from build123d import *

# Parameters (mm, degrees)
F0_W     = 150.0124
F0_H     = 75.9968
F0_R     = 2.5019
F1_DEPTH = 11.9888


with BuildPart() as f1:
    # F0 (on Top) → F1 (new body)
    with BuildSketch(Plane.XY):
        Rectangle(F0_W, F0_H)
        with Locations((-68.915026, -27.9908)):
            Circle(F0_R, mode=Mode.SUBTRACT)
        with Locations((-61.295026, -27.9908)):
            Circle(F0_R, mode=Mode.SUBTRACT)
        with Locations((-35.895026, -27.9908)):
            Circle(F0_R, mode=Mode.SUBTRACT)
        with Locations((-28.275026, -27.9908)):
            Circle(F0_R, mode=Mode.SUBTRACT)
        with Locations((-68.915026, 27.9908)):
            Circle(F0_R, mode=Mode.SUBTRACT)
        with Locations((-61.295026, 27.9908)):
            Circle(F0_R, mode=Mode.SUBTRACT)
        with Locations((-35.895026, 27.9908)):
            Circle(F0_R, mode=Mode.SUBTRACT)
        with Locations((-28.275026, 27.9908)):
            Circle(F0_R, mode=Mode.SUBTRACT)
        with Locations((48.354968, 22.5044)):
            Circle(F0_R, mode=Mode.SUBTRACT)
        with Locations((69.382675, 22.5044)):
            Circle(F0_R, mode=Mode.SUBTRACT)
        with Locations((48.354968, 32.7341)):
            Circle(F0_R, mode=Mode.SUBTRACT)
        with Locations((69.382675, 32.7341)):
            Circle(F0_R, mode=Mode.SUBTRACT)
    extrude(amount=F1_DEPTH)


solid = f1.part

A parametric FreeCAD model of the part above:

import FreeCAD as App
import Part
import Sketcher
from FreeCAD import Vector
Q = App.Units.Quantity

doc = App.newDocument("Part")
body = doc.addObject("PartDesign::Body", "Body")

# Sketch on XY plane
sketch1 = body.newObject("Sketcher::SketchObject", "Sketch")
sketch1.AttachmentSupport = (doc.getObject("XY_Plane"), [""])
sketch1.MapMode = "FlatFace"
sketch1.addGeometry([
    Part.LineSegment(Vector(-75, 38, 0), Vector(-75, -38, 0)),  # 0
    Part.LineSegment(Vector(-75, -38, 0), Vector(75, -38, 0)),  # 1
    Part.LineSegment(Vector(75, -38, 0), Vector(75, 38, 0)),  # 2
    Part.LineSegment(Vector(75, 38, 0), Vector(-75, 38, 0)),  # 3
    Part.Circle(Vector(-68.9, -28, 0), Vector(0, 0, 1), 2.5),  # 4
    Part.Circle(Vector(-61.3, -28, 0), Vector(0, 0, 1), 2.5),  # 5
    Part.Circle(Vector(-35.9, -28, 0), Vector(0, 0, 1), 2.5),  # 6
    Part.Circle(Vector(-28.3, -28, 0), Vector(0, 0, 1), 2.5),  # 7
    Part.Circle(Vector(-68.9, 28, 0), Vector(0, 0, 1), 2.5),  # 8
    Part.Circle(Vector(-61.3, 28, 0), Vector(0, 0, 1), 2.5),  # 9
    Part.Circle(Vector(-35.9, 28, 0), Vector(0, 0, 1), 2.5),  # 10
    Part.Circle(Vector(-28.3, 28, 0), Vector(0, 0, 1), 2.5),  # 11
    Part.Circle(Vector(48.4, 22.5, 0), Vector(0, 0, 1), 2.5),  # 12
    Part.Circle(Vector(69.4, 22.5, 0), Vector(0, 0, 1), 2.5),  # 13
    Part.Circle(Vector(48.4, 32.7, 0), Vector(0, 0, 1), 2.5),  # 14
    Part.Circle(Vector(69.4, 32.7, 0), Vector(0, 0, 1), 2.5),  # 15
], False)
sketch1.addConstraint([
    Sketcher.Constraint("Coincident", 0, 2, 1, 1),
    Sketcher.Constraint("Coincident", 1, 2, 2, 1),
    Sketcher.Constraint("Coincident", 2, 2, 3, 1),
    Sketcher.Constraint("Coincident", 3, 2, 0, 1),
    Sketcher.Constraint("Vertical", 0),
    Sketcher.Constraint("Horizontal", 1),
    Sketcher.Constraint("Vertical", 2),
    Sketcher.Constraint("Horizontal", 3),
    Sketcher.Constraint("Equal", 4, 5),
    Sketcher.Constraint("Equal", 5, 6),
    Sketcher.Constraint("Equal", 6, 7),
    Sketcher.Constraint("Equal", 7, 8),
    Sketcher.Constraint("Equal", 8, 9),
    Sketcher.Constraint("Equal", 9, 10),
    Sketcher.Constraint("Equal", 10, 11),
    Sketcher.Constraint("Equal", 11, 12),
    Sketcher.Constraint("Equal", 12, 13),
    Sketcher.Constraint("Equal", 13, 14),
    Sketcher.Constraint("Equal", 14, 15),
    Sketcher.Constraint("Symmetric", 0, 2, 2, 2, -1, 1),
    Sketcher.Constraint("Symmetric", 4, 3, 8, 3, -1),
    Sketcher.Constraint("Symmetric", 5, 3, 9, 3, -1),
    Sketcher.Constraint("Symmetric", 6, 3, 10, 3, -1),
    Sketcher.Constraint("Symmetric", 7, 3, 11, 3, -1),
    Sketcher.Constraint("Horizontal", 4, 3, 5, 3),
    Sketcher.Constraint("Horizontal", 5, 3, 6, 3),
    Sketcher.Constraint("Horizontal", 6, 3, 7, 3),
    Sketcher.Constraint("Horizontal", 12, 3, 13, 3),
    Sketcher.Constraint("Horizontal", 14, 3, 15, 3),
    Sketcher.Constraint("Vertical", 12, 3, 14, 3),
    Sketcher.Constraint("Vertical", 13, 3, 15, 3),
    Sketcher.Constraint("Diameter", 4, Q("0.197 in")),
    Sketcher.Constraint("DistanceX", 5, 3, 6, 3, Q("1 in")),
    Sketcher.Constraint("DistanceX", 4, 3, 5, 3, Q("0.3 in")),
    Sketcher.Constraint("DistanceX", 6, 3, 7, 3, Q("0.3 in")),
    Sketcher.Constraint("DistanceX", 1, 1, 1, 2, Q("5.906 in")),
    Sketcher.Constraint("DistanceY", 0, 2, 0, 1, Q("2.992 in")),
    Sketcher.Constraint("DistanceY", 13, 3, 2, 2, Q("0.61 in")),
    Sketcher.Constraint("DistanceY", 4, 3, -1, 1, Q("1.102 in")),
    Sketcher.Constraint("DistanceY", -1, 1, 14, 3, 32.7341),
    Sketcher.Constraint("DistanceX", 11, 3, 13, 3, 97.657701),
    Sketcher.Constraint("DistanceX", 4, 3, -1, 1, 68.915026),
    Sketcher.Constraint("DistanceX", -1, 1, 12, 3, 48.354968),
])
pad1 = body.newObject("PartDesign::Pad", "Pad")
pad1.Profile = sketch1
pad1.Length = Q("0.472 in")

doc.recompute()
